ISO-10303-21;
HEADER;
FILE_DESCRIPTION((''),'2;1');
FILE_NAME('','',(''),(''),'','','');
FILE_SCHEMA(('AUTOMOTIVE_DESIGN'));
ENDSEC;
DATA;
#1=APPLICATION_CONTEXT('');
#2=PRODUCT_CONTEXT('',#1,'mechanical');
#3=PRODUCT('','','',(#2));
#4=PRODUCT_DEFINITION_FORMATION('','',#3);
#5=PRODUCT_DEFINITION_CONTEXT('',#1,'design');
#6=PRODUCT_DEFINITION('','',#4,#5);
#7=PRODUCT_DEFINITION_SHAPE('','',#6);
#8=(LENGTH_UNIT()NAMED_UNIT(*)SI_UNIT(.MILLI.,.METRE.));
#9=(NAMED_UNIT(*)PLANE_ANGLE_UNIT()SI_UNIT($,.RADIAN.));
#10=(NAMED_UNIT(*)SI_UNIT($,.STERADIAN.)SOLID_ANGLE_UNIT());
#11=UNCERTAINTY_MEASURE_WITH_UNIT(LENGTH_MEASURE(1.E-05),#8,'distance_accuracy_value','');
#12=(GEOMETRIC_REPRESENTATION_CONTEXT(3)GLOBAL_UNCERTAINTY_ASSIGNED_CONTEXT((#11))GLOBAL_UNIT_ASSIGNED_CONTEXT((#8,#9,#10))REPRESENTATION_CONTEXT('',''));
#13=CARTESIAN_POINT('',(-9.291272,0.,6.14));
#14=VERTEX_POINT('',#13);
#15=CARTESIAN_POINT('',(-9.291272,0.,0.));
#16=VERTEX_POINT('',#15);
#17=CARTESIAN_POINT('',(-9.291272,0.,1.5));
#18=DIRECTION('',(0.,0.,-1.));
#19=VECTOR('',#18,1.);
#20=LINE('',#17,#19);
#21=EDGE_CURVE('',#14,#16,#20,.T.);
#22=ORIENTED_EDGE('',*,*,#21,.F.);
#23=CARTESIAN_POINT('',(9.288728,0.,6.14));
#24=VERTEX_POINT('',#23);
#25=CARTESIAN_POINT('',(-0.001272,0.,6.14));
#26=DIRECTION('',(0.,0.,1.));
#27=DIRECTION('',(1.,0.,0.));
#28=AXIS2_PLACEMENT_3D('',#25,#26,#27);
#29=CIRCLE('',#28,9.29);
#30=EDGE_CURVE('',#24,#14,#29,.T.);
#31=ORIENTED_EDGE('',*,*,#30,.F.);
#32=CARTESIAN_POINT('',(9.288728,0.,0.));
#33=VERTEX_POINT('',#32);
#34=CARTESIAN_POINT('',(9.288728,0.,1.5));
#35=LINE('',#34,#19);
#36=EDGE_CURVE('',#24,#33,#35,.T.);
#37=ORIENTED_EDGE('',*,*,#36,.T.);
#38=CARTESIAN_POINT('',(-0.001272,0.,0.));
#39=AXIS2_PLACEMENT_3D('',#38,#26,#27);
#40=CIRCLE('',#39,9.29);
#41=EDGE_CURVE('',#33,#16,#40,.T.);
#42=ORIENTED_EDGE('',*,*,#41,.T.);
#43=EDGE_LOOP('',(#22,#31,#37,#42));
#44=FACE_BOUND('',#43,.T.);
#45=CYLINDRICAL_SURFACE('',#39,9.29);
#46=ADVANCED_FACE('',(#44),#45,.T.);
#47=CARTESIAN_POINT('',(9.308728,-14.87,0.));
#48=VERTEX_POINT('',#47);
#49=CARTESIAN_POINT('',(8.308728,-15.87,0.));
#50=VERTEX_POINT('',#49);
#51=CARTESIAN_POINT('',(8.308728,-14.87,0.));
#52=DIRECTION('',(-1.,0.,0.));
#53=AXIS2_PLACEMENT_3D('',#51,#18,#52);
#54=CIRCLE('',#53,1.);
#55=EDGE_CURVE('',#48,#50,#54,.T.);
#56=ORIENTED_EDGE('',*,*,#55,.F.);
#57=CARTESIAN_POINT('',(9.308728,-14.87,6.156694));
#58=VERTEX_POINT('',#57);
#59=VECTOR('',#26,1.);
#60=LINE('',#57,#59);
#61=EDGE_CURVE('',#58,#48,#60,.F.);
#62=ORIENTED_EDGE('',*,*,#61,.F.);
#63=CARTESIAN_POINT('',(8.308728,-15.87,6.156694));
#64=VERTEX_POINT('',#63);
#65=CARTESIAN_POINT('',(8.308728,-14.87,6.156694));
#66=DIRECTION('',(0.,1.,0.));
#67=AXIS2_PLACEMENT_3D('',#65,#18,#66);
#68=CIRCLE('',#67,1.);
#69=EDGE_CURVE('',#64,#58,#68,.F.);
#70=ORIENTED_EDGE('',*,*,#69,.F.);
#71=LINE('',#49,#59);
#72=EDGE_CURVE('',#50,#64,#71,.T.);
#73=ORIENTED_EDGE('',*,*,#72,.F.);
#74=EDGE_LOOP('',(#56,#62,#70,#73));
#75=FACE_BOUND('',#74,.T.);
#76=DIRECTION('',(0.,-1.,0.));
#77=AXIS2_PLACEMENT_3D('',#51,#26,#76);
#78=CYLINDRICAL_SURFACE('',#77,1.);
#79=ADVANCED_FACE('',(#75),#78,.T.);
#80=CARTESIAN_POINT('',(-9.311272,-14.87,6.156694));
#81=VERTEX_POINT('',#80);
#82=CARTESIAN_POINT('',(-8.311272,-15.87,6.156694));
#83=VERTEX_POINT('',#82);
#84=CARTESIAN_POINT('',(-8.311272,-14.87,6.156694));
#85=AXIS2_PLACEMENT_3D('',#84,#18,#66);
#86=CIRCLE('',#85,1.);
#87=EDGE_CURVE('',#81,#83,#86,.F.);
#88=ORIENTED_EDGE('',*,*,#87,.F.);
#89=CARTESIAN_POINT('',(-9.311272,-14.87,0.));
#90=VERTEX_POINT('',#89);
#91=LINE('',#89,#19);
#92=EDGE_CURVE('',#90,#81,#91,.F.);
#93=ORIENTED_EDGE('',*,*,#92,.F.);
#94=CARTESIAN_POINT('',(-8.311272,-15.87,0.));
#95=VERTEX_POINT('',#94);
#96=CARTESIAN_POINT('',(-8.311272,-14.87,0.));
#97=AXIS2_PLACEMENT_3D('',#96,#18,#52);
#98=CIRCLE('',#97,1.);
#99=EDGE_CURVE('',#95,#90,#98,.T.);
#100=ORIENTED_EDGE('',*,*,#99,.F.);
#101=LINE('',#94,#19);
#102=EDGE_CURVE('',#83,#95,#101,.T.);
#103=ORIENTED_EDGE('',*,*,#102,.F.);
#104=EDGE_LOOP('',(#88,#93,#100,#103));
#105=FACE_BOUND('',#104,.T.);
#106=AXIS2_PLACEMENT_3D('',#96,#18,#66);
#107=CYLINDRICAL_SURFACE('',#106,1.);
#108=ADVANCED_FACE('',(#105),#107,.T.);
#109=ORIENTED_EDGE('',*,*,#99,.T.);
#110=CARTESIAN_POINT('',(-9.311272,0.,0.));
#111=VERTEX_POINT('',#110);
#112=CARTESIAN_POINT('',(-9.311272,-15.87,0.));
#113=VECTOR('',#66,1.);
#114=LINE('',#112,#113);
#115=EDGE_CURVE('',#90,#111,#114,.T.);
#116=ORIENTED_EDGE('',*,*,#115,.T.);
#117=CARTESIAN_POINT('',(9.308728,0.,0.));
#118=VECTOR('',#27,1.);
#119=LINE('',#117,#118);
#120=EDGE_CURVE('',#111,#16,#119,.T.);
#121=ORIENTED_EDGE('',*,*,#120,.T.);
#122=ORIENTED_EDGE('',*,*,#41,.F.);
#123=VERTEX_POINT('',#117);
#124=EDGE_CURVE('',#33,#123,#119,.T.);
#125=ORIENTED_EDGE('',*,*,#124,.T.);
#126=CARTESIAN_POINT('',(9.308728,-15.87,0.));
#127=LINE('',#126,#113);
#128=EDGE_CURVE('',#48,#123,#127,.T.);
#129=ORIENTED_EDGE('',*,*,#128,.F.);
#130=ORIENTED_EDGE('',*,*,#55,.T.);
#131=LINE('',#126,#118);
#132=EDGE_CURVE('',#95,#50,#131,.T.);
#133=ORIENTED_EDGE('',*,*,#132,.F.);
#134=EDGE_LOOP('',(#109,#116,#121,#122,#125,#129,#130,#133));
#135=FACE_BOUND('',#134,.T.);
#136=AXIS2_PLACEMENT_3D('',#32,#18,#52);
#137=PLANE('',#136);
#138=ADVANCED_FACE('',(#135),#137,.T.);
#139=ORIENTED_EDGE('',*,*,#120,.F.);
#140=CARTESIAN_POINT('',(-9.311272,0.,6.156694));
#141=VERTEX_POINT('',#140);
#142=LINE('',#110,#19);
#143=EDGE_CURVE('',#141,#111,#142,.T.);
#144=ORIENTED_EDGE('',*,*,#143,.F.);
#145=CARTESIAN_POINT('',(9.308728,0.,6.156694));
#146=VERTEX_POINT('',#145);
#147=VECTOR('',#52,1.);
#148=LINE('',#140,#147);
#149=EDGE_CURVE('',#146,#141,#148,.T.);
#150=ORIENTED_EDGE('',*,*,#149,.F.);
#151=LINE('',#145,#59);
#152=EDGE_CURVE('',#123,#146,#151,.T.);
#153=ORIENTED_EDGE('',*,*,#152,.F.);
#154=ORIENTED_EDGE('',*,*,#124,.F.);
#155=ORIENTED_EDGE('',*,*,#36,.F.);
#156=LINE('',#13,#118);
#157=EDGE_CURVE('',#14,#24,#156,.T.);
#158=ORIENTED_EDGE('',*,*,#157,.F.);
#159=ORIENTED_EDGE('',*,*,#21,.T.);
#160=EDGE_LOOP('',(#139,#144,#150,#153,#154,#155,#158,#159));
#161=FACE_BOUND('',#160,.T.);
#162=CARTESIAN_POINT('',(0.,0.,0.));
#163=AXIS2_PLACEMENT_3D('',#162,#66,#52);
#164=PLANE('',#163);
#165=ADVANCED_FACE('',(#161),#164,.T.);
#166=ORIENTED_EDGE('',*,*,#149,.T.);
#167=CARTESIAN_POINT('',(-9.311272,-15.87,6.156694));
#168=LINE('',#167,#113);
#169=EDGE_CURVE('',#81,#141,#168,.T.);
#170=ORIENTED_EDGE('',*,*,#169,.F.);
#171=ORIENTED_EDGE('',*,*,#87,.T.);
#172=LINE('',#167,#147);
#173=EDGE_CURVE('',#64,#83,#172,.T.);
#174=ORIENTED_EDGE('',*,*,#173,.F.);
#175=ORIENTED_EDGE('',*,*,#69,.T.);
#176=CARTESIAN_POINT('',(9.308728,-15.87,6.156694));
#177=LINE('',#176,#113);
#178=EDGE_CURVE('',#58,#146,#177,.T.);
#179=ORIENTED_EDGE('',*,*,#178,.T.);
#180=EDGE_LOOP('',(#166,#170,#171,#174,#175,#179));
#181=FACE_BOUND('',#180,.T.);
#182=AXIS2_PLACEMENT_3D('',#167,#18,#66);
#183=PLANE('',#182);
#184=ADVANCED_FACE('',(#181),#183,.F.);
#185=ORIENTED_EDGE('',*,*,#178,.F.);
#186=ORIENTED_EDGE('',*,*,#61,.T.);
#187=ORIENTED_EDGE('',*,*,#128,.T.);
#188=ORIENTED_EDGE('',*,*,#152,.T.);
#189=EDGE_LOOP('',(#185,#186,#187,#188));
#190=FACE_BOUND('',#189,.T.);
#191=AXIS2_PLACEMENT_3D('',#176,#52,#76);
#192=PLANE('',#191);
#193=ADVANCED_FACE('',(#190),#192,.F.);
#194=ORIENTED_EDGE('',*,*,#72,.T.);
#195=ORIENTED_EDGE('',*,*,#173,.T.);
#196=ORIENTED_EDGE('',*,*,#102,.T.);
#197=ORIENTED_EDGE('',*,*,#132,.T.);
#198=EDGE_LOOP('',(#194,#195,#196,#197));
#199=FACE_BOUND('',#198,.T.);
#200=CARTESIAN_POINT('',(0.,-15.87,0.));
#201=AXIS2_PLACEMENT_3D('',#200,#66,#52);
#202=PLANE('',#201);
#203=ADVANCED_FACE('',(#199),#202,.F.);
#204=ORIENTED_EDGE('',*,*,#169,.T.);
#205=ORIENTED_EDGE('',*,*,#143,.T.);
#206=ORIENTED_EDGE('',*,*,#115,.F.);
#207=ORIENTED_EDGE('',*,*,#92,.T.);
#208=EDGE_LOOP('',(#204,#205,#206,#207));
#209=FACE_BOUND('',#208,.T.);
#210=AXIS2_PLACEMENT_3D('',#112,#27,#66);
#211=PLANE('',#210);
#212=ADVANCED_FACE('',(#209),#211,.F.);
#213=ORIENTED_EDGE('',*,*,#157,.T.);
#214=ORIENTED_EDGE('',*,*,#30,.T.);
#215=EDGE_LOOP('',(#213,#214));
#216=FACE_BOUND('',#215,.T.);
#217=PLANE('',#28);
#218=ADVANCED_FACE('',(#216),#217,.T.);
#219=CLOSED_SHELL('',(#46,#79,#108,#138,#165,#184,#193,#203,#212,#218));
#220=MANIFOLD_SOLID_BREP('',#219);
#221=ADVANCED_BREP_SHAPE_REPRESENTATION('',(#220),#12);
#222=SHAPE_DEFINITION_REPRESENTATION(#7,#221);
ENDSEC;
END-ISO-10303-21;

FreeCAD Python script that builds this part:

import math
import FreeCAD as App
import Part
import Sketcher
from FreeCAD import Vector


def edges_at(feature, points):
    """Names of the edges that pass closest to the given points."""
    edges = feature.Shape.Edges
    near = lambda p: min(range(len(edges)), key=lambda i: edges[i].distToShape(Part.Vertex(*p))[0])
    return sorted({f"Edge{near(p) + 1}" for p in points})


def add_polygon(sketch, points):
    """Adds a closed chain of lines whose ends are joined by coincident constraints."""
    first, n = sketch.GeometryCount, len(points)
    for a, b in zip(points, points[1:] + points[:1]):
        sketch.addGeometry(Part.LineSegment(App.Vector(*a, 0), App.Vector(*b, 0)), False)
    for i in range(n):
        sketch.addConstraint(Sketcher.Constraint("Coincident", first + i, 2, first + (i + 1) % n, 1))

doc = App.newDocument("Part")
body = doc.addObject("PartDesign::Body", "Body")

sketch1 = doc.addObject("Sketcher::SketchObject", "Sketch")
body.addObject(sketch1)
sketch1.AttachmentSupport = (doc.XZ_Plane, [""])
sketch1.MapMode = "FlatFace"
add_polygon(sketch1, [(-9.3, 1.5), (-9.3, 0), (0, 0), (0, 1.5)])
sketch1.addGeometry(Part.LineSegment(Vector(0, 1.5, 0), Vector(0, 0, 0)), True)
sketch1.addConstraint([
    Sketcher.Constraint("Vertical", 0),
    Sketcher.Constraint("Horizontal", 1),
    Sketcher.Constraint("Vertical", 2),
    Sketcher.Constraint("Horizontal", 3),
    Sketcher.Constraint("Vertical", 4),
    Sketcher.Constraint("Coincident", 4, 1, 2, 2),
    Sketcher.Constraint("PointOnObject", 0, 2, -1),
    Sketcher.Constraint("PointOnObject", 4, 2, -1),
    Sketcher.Constraint("DistanceY", 0, 2, 0, 1, 1.5),
    Sketcher.Constraint("DistanceX", 1, 1, 1, 2, 9.29),
    Sketcher.Constraint("DistanceX", 0, 2, -1, 1, 9.291272),
])
revolution = doc.addObject("PartDesign::Revolution", "Revolution")
body.addObject(revolution)
revolution.Profile = sketch1
revolution.ReferenceAxis = (sketch1, ["Axis0"])
revolution.Angle = 180

sketch2 = doc.addObject("Sketcher::SketchObject", "Sketch001")
body.addObject(sketch2)
sketch2.AttachmentSupport = (doc.XY_Plane, [""])
sketch2.MapMode = "FlatFace"
sketch2.AttachmentOffset = App.Placement(Vector(0, 0, 1.5), App.Rotation())
sketch2.addGeometry([
    Part.LineSegment(Vector(-9, 0, 0), Vector(9, 0, 0)),
    Part.ArcOfCircle(Part.Circle(Vector(0, 0, 0), Vector(0, 0, 1), 9), math.radians(0), math.radians(180)),
], False)
sketch2.addConstraint([
    Sketcher.Constraint("Coincident", 0, 1, 1, 2),
    Sketcher.Constraint("Coincident", 1, 1, 0, 2),
    Sketcher.Constraint("Horizontal", 0),
    Sketcher.Constraint("PointOnObject", 1, 3, -1),
    Sketcher.Constraint("PointOnObject", 0, 1, -1),
    Sketcher.Constraint("Radius", 1, 9.29),
    Sketcher.Constraint("DistanceX", 1, 3, -1, 1, 0.001272),
])
pad1 = doc.addObject("PartDesign::Pad", "Pad")
body.addObject(pad1)
pad1.Profile = sketch2
pad1.Length = 4.65

sketch3 = doc.addObject("Sketcher::SketchObject", "Sketch002")
body.addObject(sketch3)
sketch3.AttachmentSupport = (doc.XZ_Plane, [""])
sketch3.MapMode = "FlatFace"
add_polygon(sketch3, [(-9, 6), (-9, 0), (9, 0), (9, 6)])
sketch3.addConstraint([
    Sketcher.Constraint("Vertical", 0),
    Sketcher.Constraint("Horizontal", 1),
    Sketcher.Constraint("Vertical", 2),
    Sketcher.Constraint("Horizontal", 3),
    Sketcher.Constraint("PointOnObject", 0, 2, -1),
    Sketcher.Constraint("DistanceX", 1, 1, 1, 2, 18.62),
    Sketcher.Constraint("DistanceY", 0, 2, 0, 1, 6.156694),
    Sketcher.Constraint("DistanceX", 0, 2, -1, 1, 9.311272),
])
pad2 = doc.addObject("PartDesign::Pad", "Pad001")
body.addObject(pad2)
pad2.Profile = sketch3
pad2.Length = 15.87
doc.recompute()

fillet = doc.addObject("PartDesign::Fillet", "Fillet")
body.addObject(fillet)
fillet.Base = (pad2, edges_at(pad2, [(9.309, -15.87, 3.078), (-9.311, -15.87, 3.078)]))
fillet.Radius = 1

sketch4 = doc.addObject("Sketcher::SketchObject", "Sketch003")
body.addObject(sketch4)
sketch4.AttachmentSupport = (doc.XY_Plane, [""])
sketch4.MapMode = "FlatFace"
sketch4.AttachmentOffset = App.Placement(Vector(0, 0, 6.15), App.Rotation())
sketch4.addGeometry([
    Part.LineSegment(Vector(-9, 0, 0), Vector(9, 0, 0)),
    Part.ArcOfCircle(Part.Circle(Vector(0, 0, 0), Vector(0, 0, 1), 9), math.radians(0), math.radians(180)),
], False)
sketch4.addConstraint([
    Sketcher.Constraint("Coincident", 0, 1, 1, 2),
    Sketcher.Constraint("Coincident", 1, 1, 0, 2),
    Sketcher.Constraint("Horizontal", 0),
    Sketcher.Constraint("PointOnObject", 1, 3, -1),
    Sketcher.Constraint("PointOnObject", 0, 1, -1),
    Sketcher.Constraint("Radius", 1, 9.29),
    Sketcher.Constraint("DistanceX", 1, 3, -1, 1, 0.001272),
])
pocket1 = doc.addObject("PartDesign::Pocket", "Pocket")
body.addObject(pocket1)
pocket1.Profile = sketch4
pocket1.Length = 0.01

doc.recompute()
